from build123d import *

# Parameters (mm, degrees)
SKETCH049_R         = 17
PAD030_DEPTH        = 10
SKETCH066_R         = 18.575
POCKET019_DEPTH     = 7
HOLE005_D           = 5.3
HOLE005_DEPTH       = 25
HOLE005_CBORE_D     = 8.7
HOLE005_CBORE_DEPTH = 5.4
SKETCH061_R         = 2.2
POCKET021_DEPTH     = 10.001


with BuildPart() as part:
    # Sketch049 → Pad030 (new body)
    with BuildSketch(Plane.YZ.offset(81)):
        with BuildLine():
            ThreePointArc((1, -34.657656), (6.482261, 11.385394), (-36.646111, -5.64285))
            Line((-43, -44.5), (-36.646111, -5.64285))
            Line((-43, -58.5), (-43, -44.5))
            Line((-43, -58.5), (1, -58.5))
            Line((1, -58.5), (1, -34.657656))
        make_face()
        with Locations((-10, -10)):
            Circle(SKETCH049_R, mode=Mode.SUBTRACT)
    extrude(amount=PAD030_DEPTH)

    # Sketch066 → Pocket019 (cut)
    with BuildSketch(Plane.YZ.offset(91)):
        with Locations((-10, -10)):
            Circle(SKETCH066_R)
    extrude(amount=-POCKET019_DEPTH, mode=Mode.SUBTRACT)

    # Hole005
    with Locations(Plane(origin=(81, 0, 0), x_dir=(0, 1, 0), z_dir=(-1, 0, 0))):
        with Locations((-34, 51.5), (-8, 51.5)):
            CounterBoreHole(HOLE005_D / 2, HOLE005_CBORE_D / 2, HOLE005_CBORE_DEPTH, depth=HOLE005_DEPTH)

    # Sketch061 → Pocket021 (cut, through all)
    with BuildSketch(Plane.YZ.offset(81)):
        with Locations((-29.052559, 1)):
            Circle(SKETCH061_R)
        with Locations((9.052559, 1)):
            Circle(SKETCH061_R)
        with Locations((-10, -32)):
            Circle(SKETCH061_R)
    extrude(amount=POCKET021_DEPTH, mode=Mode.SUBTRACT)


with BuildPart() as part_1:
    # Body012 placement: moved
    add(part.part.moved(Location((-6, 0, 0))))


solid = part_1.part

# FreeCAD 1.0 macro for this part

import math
import FreeCAD as App
import Part
import Sketcher
Q = App.Units.Quantity

doc = App.newDocument("Part")
params = doc.addObject("Spreadsheet::Sheet", "Params")
for row, (alias, value) in enumerate([
    ("sketch1_diameter", "34 mm"),
    ("sketch1_radius", "27 mm"),
    ("sketch1_width", "44 mm"),
    ("sketch1_height", "14 mm"),
    ("pad1_length", "10 mm"),
    ("sketch2_diameter", "37.15 mm"),
    ("pocket1_length", "7 mm"),
    ("sketch3_diameter", "5.3 mm"),
    ("hole_diameter", "5.3 mm"),
    ("hole_depth", "25 mm"),
    ("hole_cbore_diameter", "8.7 mm"),
    ("hole_cbore_depth", "5.4 mm"),
    ("sketch4_diameter", "4.4 mm"),
], start=1):
    params.set(f"A{row}", alias)
    params.set(f"B{row}", "=" + value)
    params.setAlias(f"B{row}", alias)

body = doc.addObject("PartDesign::Body", "Body")

# Sketch on YZ plane
sketch1 = body.newObject("Sketcher::SketchObject", "Sketch")
sketch1.AttachmentSupport = (doc.getObject("YZ_Plane"), [""])
sketch1.MapMode = "FlatFace"
sketch1.AttachmentOffset = App.Placement(App.Vector(0, 0, 81), App.Rotation())
sketch1.addGeometry([
    Part.ArcOfCircle(Part.Circle(App.Vector(-10, -10, 0), App.Vector(0, 0, 1), 27), math.radians(-66), math.radians(171)),  # 0
    Part.LineSegment(App.Vector(-37, -6, 0), App.Vector(-43, -44, 0)),  # 1
    Part.LineSegment(App.Vector(-43, -44, 0), App.Vector(-43, -58, 0)),  # 2
    Part.LineSegment(App.Vector(-43, -58, 0), App.Vector(1, -58, 0)),  # 3
    Part.LineSegment(App.Vector(1, -58, 0), App.Vector(1, -35, 0)),  # 4
    Part.Circle(App.Vector(-10, -10, 0), App.Vector(0, 0, 1), 17),  # 5
], False)
sketch1.addConstraint([
    Sketcher.Constraint("Tangent", 0, 2, 1, 1),
    Sketcher.Constraint("Coincident", 1, 2, 2, 1),
    Sketcher.Constraint("Coincident", 2, 2, 3, 1),
    Sketcher.Constraint("Coincident", 3, 2, 4, 1),
    Sketcher.Constraint("Coincident", 4, 2, 0, 1),
    Sketcher.Constraint("Vertical", 2),
    Sketcher.Constraint("Horizontal", 3),
    Sketcher.Constraint("Vertical", 4),
    Sketcher.Constraint("Coincident", 5, 3, 0, 3),
    Sketcher.Constraint("Diameter", 5, Q("34 mm")),
    Sketcher.Constraint("Radius", 0, Q("27 mm")),
    Sketcher.Constraint("DistanceX", 3, 1, 3, 2, Q("44 mm")),
    Sketcher.Constraint("DistanceY", 2, 2, 2, 1, Q("14 mm")),
    Sketcher.Constraint("DistanceX", 0, 3, -1, 1, Q("10 mm")),
    Sketcher.Constraint("DistanceY", 0, 3, -1, 1, Q("10 mm")),
    Sketcher.Constraint("DistanceX", 1, 2, -1, 1, Q("43 mm")),
    Sketcher.Constraint("DistanceY", 1, 2, -1, 1, Q("44.5 mm")),
])
sketch1.setExpression("Constraints[9]", "Params.sketch1_diameter")
sketch1.setExpression("Constraints[10]", "Params.sketch1_radius")
sketch1.setExpression("Constraints[11]", "Params.sketch1_width")
sketch1.setExpression("Constraints[12]", "Params.sketch1_height")
pad1 = body.newObject("PartDesign::Pad", "Pad")
pad1.Profile = sketch1
pad1.setExpression("Length", "Params.pad1_length")

# Sketch on YZ plane
sketch2 = body.newObject("Sketcher::SketchObject", "Sketch001")
sketch2.AttachmentSupport = (doc.getObject("YZ_Plane"), [""])
sketch2.MapMode = "FlatFace"
sketch2.AttachmentOffset = App.Placement(App.Vector(0, 0, 91), App.Rotation())
sketch2.addGeometry(Part.Circle(App.Vector(-10, -10, 0), App.Vector(0, 0, 1), 19), False)
sketch2.addConstraint([
    Sketcher.Constraint("Diameter", 0, Q("37.15 mm")),
    Sketcher.Constraint("DistanceX", 0, 3, -1, 1, Q("10 mm")),
    Sketcher.Constraint("DistanceY", 0, 3, -1, 1, Q("10 mm")),
])
sketch2.setExpression("Constraints[0]", "Params.sketch2_diameter")
pocket1 = body.newObject("PartDesign::Pocket", "Pocket")
pocket1.Profile = sketch2
pocket1.setExpression("Length", "Params.pocket1_length")

# Sketch on YZ plane
sketch3 = body.newObject("Sketcher::SketchObject", "Sketch002")
sketch3.AttachmentSupport = (doc.getObject("YZ_Plane"), [""])
sketch3.MapMode = "FlatFace"
sketch3.AttachmentOffset = App.Placement(App.Vector(0, 0, 81), App.Rotation())
sketch3.addGeometry([
    Part.Circle(App.Vector(-34, -51.5, 0), App.Vector(0, 0, 1), 2.6),
    Part.Circle(App.Vector(-8, -51.5, 0), App.Vector(0, 0, 1), 2.6),
], False)
sketch3.addConstraint([
    Sketcher.Constraint("Equal", 0, 1),
    Sketcher.Constraint("Horizontal", 0, 3, 1, 3),
    Sketcher.Constraint("Diameter", 0, Q("5.3 mm")),
    Sketcher.Constraint("DistanceX", 0, 3, -1, 1, Q("34 mm")),
    Sketcher.Constraint("DistanceX", 1, 3, -1, 1, Q("8 mm")),
    Sketcher.Constraint("DistanceY", 0, 3, -1, 1, Q("51.5 mm")),
])
sketch3.setExpression("Constraints[2]", "Params.sketch3_diameter")
doc.recompute()
hole = body.newObject("PartDesign::Hole", "Hole")
hole.Profile = sketch3
hole.ThreadType = "None"
hole.setExpression("Diameter", "Params.hole_diameter")
hole.DepthType = "Dimension"
hole.setExpression("Depth", "Params.hole_depth")
hole.DrillPoint = "Flat"
hole.HoleCutType = "Counterbore"
hole.setExpression("HoleCutDiameter", "Params.hole_cbore_diameter")
hole.setExpression("HoleCutDepth", "Params.hole_cbore_depth")
hole.Reversed = True

# Sketch on YZ plane
sketch4 = body.newObject("Sketcher::SketchObject", "Sketch003")
sketch4.AttachmentSupport = (doc.getObject("YZ_Plane"), [""])
sketch4.MapMode = "FlatFace"
sketch4.AttachmentOffset = App.Placement(App.Vector(0, 0, 81), App.Rotation())
sketch4.addGeometry([
    Part.Circle(App.Vector(-29.1, 1, 0), App.Vector(0, 0, 1), 2.2),
    Part.Circle(App.Vector(9.1, 1, 0), App.Vector(0, 0, 1), 2.2),
    Part.Circle(App.Vector(-10, -32, 0), App.Vector(0, 0, 1), 2.2),
], False)
sketch4.addConstraint([
    Sketcher.Constraint("Equal", 0, 1),
    Sketcher.Constraint("Equal", 1, 2),
    Sketcher.Constraint("Horizontal", 0, 3, 1, 3),
    Sketcher.Constraint("Diameter", 0, Q("4.4 mm")),
    Sketcher.Constraint("DistanceY", -1, 1, 0, 3, Q("1 mm")),
    Sketcher.Constraint("DistanceX", 2, 3, -1, 1, Q("10 mm")),
    Sketcher.Constraint("DistanceY", 2, 3, -1, 1, Q("32 mm")),
    Sketcher.Constraint("DistanceX", 0, 3, -1, 1, Q("29.052559 mm")),
    Sketcher.Constraint("DistanceX", -1, 1, 1, 3, Q("9.052559 mm")),
])
sketch4.setExpression("Constraints[3]", "Params.sketch4_diameter")
pocket2 = body.newObject("PartDesign::Pocket", "Pocket001")
pocket2.Profile = sketch4
pocket2.Type = "ThroughAll"
pocket2.Reversed = True
body2 = doc.addObject("PartDesign::Body", "Body001")
doc.recompute()

body.Placement = App.Placement(App.Vector(-6, 0, 0), App.Rotation(App.Vector(0, 0, 1), 0))
boolean = body2.newObject("PartDesign::Boolean", "Boolean")
boolean.Type = "Fuse"
boolean.addObjects([body])

doc.recompute()
